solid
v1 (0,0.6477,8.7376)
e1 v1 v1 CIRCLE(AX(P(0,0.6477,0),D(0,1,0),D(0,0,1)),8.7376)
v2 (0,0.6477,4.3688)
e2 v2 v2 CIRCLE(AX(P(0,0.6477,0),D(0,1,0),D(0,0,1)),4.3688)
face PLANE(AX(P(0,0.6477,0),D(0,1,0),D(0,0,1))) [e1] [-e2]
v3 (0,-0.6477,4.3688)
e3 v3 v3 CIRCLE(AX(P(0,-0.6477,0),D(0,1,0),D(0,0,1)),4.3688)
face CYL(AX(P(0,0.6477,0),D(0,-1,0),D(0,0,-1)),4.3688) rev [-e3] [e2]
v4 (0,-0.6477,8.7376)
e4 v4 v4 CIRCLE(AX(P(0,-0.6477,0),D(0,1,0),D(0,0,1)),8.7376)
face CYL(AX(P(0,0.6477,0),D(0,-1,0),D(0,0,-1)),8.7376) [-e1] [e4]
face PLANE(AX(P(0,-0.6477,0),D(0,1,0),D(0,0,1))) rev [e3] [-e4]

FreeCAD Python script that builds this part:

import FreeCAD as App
import Part
import Sketcher
from FreeCAD import Vector
Q = App.Units.Quantity

doc = App.newDocument("Part")
body = doc.addObject("PartDesign::Body", "Body")

# Sketch on XZ plane
sketch1 = body.newObject("Sketcher::SketchObject", "Sketch")
sketch1.AttachmentSupport = (doc.getObject("XZ_Plane"), [""])
sketch1.MapMode = "FlatFace"
sketch1.addGeometry([
    Part.Circle(Vector(0, 0, 0), Vector(0, 0, 1), 8.7376),
    Part.Circle(Vector(0, 0, 0), Vector(0, 0, 1), 4.3688),
], False)
sketch1.addConstraint([
    Sketcher.Constraint("Coincident", 0, 3, -1, 1),
    Sketcher.Constraint("Coincident", 1, 3, -1, 1),
    Sketcher.Constraint("Diameter", 0, Q("0.688 in")),
    Sketcher.Constraint("Diameter", 1, Q("0.344 in")),
])
pad1 = body.newObject("PartDesign::Pad", "Pad")
pad1.Profile = sketch1
pad1.Type = "TwoLengths"
pad1.Length = Q("0.0255 in")
pad1.Length2 = Q("0.0255 in")
pad1.Reversed = True

doc.recompute()
